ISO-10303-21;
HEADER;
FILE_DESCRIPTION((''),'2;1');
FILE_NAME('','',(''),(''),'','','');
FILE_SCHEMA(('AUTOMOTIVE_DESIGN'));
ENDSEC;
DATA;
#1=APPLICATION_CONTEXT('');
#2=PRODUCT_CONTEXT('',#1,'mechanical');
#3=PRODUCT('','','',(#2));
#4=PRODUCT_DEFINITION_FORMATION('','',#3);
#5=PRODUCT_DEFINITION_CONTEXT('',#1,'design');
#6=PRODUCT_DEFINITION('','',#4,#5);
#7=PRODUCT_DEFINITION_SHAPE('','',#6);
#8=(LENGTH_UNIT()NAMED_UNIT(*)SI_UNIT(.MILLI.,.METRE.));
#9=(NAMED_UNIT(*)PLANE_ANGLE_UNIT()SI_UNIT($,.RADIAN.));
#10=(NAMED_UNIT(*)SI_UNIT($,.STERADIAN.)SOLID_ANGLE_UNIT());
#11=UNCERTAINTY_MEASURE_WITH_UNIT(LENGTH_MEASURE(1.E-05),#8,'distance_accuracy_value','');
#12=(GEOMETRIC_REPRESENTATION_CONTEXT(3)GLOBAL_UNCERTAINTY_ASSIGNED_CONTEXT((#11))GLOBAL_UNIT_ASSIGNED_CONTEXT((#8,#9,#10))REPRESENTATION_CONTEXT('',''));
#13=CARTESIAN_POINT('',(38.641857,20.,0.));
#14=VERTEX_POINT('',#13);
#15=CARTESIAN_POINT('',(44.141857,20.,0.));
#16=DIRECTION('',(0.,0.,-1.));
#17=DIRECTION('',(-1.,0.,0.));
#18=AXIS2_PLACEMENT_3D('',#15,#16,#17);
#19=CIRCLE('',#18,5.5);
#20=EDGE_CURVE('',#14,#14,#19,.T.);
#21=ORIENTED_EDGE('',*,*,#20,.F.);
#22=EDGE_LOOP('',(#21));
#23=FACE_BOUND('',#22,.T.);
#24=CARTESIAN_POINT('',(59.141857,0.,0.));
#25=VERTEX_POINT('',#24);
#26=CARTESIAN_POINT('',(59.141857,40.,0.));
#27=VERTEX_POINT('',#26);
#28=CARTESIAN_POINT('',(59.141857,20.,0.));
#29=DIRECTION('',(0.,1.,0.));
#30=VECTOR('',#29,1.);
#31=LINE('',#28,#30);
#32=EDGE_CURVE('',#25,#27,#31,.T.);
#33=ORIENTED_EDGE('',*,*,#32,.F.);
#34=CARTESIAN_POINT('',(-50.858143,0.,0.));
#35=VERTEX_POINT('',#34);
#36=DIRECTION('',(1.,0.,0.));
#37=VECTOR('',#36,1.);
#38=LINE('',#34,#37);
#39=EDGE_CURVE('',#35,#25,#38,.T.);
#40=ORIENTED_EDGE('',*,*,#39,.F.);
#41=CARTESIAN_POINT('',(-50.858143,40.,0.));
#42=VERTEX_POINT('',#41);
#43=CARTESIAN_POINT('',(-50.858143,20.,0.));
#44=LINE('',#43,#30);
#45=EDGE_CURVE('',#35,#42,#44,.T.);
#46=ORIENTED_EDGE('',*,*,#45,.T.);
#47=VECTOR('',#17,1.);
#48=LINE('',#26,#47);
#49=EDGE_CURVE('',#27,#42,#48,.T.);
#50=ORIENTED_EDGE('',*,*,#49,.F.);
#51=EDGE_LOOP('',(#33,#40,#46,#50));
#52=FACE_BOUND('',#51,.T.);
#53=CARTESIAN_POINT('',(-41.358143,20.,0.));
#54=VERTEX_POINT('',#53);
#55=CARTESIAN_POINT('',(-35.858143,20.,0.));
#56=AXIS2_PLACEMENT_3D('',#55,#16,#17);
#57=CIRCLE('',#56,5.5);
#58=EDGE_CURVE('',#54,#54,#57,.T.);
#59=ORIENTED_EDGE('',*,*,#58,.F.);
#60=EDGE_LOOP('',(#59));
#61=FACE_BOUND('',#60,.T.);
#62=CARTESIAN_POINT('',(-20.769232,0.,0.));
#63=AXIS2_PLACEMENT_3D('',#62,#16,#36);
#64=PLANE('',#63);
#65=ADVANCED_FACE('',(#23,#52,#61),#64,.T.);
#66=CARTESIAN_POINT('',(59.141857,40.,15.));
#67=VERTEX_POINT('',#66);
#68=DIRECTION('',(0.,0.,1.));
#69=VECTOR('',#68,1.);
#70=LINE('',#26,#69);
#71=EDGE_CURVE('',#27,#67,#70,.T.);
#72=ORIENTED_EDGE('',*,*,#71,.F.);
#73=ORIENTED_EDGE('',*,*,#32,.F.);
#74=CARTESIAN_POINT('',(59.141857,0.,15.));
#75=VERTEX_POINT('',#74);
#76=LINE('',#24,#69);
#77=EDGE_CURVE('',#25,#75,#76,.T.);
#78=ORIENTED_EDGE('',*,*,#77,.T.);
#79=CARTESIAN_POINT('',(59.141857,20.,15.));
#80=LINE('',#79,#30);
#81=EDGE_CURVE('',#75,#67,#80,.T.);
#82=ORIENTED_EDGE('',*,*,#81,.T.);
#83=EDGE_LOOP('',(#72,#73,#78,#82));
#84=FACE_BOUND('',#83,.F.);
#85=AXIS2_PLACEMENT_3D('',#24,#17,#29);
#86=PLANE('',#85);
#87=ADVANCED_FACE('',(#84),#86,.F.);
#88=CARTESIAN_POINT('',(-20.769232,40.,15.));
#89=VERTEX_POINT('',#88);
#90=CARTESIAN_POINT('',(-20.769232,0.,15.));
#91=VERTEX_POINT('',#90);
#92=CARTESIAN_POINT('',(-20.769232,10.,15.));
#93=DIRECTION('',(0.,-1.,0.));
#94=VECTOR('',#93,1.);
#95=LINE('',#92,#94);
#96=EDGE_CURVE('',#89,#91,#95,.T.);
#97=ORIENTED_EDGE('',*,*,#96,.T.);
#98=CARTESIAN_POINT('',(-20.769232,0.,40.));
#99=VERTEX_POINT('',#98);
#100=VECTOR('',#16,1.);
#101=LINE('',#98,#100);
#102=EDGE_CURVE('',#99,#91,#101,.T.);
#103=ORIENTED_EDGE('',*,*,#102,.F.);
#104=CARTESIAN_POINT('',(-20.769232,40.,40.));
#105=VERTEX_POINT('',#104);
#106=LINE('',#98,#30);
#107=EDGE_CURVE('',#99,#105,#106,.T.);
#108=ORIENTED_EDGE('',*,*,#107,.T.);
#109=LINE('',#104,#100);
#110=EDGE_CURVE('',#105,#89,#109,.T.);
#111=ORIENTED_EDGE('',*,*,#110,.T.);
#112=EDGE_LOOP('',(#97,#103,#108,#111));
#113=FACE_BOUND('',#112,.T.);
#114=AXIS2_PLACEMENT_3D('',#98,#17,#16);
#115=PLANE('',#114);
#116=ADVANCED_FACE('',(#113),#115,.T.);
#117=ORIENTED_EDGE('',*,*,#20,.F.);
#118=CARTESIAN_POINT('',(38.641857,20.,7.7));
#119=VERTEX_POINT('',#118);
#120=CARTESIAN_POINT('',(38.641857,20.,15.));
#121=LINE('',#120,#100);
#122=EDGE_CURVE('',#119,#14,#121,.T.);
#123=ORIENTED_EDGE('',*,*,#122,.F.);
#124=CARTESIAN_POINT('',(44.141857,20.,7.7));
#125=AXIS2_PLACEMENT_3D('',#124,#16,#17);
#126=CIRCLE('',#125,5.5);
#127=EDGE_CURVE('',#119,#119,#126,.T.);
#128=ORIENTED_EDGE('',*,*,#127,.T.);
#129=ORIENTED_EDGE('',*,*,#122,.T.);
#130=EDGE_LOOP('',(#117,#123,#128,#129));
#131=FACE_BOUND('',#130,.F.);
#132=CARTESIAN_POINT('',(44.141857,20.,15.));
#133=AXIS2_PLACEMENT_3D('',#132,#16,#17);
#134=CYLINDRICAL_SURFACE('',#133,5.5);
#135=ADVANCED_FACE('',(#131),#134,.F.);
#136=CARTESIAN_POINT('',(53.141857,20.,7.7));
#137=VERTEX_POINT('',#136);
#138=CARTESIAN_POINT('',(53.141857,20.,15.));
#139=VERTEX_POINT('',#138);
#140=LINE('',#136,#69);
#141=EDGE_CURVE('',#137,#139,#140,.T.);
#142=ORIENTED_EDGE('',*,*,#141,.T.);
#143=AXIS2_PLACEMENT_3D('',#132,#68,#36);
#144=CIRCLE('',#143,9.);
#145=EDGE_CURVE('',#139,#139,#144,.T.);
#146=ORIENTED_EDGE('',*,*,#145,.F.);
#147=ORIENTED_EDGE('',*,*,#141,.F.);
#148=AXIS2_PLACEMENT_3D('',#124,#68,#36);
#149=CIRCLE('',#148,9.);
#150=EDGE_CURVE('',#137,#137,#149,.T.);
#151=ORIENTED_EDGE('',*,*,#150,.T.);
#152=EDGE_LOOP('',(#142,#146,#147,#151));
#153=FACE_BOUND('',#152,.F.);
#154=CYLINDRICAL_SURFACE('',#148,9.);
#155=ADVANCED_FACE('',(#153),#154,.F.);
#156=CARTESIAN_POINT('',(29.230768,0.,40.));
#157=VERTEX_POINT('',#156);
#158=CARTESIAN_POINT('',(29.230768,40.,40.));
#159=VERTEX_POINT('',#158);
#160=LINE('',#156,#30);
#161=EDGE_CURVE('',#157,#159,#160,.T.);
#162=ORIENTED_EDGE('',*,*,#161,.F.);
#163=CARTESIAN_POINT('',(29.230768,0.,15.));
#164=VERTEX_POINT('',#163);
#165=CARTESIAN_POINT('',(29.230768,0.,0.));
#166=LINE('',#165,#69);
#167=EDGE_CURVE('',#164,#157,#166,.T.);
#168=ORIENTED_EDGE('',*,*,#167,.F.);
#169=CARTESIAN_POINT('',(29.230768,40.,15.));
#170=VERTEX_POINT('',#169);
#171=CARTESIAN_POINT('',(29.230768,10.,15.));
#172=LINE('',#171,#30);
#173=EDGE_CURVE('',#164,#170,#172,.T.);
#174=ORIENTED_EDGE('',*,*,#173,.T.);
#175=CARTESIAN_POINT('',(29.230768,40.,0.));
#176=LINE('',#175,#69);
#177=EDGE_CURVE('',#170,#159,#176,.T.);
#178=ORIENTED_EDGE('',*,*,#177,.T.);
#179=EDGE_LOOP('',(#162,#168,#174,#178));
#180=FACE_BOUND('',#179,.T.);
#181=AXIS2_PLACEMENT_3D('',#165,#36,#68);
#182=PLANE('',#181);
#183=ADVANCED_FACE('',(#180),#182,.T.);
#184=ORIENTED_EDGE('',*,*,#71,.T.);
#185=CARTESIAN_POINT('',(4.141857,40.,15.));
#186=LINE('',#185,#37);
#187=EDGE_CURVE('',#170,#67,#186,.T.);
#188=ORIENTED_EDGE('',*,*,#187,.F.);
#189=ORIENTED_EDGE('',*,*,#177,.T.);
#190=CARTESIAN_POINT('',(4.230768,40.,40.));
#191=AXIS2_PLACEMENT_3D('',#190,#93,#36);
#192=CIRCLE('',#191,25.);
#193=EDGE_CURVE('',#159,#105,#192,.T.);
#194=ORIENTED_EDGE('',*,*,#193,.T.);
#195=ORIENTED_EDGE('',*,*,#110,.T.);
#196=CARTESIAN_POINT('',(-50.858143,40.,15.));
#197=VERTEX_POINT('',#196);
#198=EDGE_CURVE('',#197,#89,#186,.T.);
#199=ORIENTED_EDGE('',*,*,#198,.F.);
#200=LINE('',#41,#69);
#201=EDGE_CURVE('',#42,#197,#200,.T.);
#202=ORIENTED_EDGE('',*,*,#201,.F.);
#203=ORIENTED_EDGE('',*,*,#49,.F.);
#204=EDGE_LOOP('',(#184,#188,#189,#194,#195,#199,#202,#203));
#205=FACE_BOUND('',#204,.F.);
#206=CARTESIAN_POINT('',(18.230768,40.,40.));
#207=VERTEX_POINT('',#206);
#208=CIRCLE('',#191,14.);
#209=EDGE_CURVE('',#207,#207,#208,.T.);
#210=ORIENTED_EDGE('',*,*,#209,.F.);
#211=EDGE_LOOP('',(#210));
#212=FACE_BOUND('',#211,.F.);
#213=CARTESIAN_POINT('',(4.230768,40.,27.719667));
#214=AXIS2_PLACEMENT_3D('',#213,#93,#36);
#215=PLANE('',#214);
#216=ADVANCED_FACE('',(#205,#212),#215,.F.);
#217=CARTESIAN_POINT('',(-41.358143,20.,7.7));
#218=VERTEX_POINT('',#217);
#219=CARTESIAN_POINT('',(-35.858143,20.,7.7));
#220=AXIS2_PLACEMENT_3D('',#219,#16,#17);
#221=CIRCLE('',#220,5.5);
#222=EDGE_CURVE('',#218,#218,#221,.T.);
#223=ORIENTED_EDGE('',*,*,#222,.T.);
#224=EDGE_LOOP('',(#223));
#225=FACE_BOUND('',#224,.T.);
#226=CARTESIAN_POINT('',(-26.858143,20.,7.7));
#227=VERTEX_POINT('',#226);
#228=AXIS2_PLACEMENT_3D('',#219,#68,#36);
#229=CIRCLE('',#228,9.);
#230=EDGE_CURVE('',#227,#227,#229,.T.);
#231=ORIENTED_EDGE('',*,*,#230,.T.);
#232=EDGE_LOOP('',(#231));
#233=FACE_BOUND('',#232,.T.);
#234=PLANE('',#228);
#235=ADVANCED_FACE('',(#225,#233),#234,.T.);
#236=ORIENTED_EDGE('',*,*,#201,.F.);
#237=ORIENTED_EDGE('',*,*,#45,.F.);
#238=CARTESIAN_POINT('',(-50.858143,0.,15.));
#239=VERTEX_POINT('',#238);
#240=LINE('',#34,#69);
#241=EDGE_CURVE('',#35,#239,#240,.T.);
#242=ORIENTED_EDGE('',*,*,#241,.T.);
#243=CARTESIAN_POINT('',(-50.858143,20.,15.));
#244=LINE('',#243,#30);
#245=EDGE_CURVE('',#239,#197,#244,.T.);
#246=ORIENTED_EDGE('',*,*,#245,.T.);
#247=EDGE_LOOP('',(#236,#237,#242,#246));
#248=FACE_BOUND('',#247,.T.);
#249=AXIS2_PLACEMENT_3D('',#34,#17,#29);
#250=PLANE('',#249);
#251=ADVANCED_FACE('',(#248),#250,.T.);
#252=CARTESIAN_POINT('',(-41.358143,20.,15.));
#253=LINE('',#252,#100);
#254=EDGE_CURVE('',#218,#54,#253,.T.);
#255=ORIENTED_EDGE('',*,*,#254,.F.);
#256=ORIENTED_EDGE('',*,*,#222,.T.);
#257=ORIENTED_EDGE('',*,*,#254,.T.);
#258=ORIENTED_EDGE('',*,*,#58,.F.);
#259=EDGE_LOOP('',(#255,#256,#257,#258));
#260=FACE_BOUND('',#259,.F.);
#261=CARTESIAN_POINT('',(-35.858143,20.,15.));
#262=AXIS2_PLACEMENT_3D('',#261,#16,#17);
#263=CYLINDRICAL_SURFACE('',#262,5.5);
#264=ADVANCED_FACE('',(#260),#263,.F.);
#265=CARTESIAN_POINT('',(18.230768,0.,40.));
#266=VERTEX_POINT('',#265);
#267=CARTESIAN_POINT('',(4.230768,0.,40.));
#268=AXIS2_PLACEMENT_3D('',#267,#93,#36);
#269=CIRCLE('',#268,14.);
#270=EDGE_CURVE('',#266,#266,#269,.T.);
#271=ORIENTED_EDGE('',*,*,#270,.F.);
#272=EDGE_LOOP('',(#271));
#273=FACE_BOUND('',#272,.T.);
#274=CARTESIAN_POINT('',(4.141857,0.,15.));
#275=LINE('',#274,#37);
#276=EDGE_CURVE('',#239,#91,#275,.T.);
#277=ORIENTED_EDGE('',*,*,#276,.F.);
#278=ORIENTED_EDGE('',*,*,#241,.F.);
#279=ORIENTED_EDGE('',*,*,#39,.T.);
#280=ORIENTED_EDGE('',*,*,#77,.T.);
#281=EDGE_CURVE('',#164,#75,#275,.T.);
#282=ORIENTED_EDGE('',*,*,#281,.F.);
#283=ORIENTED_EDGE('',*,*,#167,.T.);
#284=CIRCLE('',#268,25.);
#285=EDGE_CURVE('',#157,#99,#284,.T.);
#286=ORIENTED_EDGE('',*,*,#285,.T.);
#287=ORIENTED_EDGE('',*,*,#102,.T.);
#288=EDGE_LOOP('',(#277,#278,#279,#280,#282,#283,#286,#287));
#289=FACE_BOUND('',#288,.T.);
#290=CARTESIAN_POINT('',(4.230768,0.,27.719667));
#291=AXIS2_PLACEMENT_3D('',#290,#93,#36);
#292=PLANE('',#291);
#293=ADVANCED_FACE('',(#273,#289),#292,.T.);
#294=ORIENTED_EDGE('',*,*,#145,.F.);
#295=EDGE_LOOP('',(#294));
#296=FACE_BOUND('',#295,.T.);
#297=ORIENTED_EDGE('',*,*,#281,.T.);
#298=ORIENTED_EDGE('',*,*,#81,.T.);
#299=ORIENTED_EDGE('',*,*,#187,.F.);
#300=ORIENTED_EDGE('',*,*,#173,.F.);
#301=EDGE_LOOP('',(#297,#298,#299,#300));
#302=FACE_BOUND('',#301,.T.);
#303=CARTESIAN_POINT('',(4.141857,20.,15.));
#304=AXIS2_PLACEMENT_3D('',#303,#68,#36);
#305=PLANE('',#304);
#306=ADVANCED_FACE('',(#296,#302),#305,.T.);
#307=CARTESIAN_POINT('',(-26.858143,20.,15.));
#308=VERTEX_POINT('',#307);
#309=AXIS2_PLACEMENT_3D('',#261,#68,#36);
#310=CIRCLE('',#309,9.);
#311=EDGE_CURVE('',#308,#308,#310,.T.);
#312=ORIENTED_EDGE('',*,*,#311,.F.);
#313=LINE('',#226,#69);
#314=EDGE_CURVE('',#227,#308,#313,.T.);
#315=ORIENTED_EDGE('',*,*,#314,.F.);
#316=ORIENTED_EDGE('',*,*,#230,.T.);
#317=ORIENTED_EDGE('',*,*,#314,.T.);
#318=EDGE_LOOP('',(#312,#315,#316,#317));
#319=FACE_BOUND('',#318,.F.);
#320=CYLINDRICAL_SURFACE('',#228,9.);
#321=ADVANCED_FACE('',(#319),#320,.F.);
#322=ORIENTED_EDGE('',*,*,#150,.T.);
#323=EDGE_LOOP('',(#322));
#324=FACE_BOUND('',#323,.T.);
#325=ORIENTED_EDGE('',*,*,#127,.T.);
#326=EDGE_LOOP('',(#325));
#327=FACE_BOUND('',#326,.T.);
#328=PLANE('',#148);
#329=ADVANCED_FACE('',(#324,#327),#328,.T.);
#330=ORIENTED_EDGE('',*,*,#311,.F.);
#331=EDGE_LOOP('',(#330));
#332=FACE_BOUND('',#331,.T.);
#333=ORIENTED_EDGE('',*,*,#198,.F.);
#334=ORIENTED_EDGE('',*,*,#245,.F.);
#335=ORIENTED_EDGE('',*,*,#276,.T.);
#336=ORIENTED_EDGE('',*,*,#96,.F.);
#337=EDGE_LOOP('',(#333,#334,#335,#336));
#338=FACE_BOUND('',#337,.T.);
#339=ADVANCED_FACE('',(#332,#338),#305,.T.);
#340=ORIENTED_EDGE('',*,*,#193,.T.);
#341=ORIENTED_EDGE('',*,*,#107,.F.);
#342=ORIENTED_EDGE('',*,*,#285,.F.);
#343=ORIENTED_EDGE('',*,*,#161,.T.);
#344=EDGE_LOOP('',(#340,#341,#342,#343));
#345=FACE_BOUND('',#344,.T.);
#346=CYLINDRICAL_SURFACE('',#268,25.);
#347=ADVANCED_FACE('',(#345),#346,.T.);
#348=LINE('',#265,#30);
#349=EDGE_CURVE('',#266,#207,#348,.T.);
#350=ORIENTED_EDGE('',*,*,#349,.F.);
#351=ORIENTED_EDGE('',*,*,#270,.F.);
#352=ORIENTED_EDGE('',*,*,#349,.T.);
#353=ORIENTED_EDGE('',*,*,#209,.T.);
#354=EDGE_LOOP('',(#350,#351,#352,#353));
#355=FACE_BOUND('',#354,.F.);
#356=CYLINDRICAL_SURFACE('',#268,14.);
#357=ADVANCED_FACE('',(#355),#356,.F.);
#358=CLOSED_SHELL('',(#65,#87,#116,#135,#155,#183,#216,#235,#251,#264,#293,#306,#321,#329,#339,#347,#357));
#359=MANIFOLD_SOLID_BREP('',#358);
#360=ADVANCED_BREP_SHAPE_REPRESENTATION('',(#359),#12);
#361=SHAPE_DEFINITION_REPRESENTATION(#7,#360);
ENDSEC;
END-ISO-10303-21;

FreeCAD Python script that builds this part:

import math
import FreeCAD as App
import Part
import Sketcher
from FreeCAD import Vector
Q = App.Units.Quantity


def add_polygon(sketch, points):
    """Adds a closed chain of lines whose ends are joined by coincident constraints."""
    first, n = sketch.GeometryCount, len(points)
    for a, b in zip(points, points[1:] + points[:1]):
        sketch.addGeometry(Part.LineSegment(App.Vector(*a, 0), App.Vector(*b, 0)), False)
    for i in range(n):
        sketch.addConstraint(Sketcher.Constraint("Coincident", first + i, 2, first + (i + 1) % n, 1))

doc = App.newDocument("Part")
body = doc.addObject("PartDesign::Body", "Body")

# Sketch on XY plane
sketch1 = body.newObject("Sketcher::SketchObject", "Sketch")
sketch1.AttachmentSupport = (doc.getObject("XY_Plane"), [""])
sketch1.MapMode = "FlatFace"
add_polygon(sketch1, [(-51, 40), (-51, 0), (59, 0), (59, 40)])  # lines 0-3
sketch1.addConstraint(Sketcher.Constraint("Vertical", 0))
sketch1.addConstraint(Sketcher.Constraint("Horizontal", 1))
sketch1.addConstraint(Sketcher.Constraint("Vertical", 2))
sketch1.addConstraint(Sketcher.Constraint("Horizontal", 3))
sketch1.addConstraint(Sketcher.Constraint("PointOnObject", 0, 2, -1))
sketch1.addConstraint(Sketcher.Constraint("DistanceX", 1, 1, 1, 2, Q("110 mm")))
sketch1.addConstraint(Sketcher.Constraint("DistanceY", 0, 2, 0, 1, Q("40 mm")))
sketch1.addConstraint(Sketcher.Constraint("DistanceX", 0, 2, -1, 1, Q("50.858143 mm")))
pad1 = body.newObject("PartDesign::Pad", "Pad")
pad1.Profile = sketch1
pad1.Length = 15

# Sketch on XY plane
sketch2 = body.newObject("Sketcher::SketchObject", "Sketch001")
sketch2.AttachmentSupport = (doc.getObject("XY_Plane"), [""])
sketch2.MapMode = "FlatFace"
sketch2.AttachmentOffset = App.Placement(Vector(0, 0, 15), App.Rotation())
sketch2.addGeometry(Part.Circle(Vector(-36, 20, 0), Vector(0, 0, 1), 6), False)
sketch2.addConstraint(Sketcher.Constraint("Diameter", 0, Q("11 mm")))
sketch2.addConstraint(Sketcher.Constraint("DistanceY", -1, 1, 0, 3, Q("20 mm")))
sketch2.addConstraint(Sketcher.Constraint("DistanceX", 0, 3, -1, 1, Q("35.858143 mm")))
doc.recompute()
hole = body.newObject("PartDesign::Hole", "Hole")
hole.Profile = sketch2
hole.ThreadType = "None"
hole.Diameter = 11
hole.DepthType = "ThroughAll"
hole.HoleCutType = "Counterbore"
hole.HoleCutDiameter = 18
hole.HoleCutDepth = 7.3

# Sketch on XY plane
sketch3 = body.newObject("Sketcher::SketchObject", "Sketch002")
sketch3.AttachmentSupport = (doc.getObject("XY_Plane"), [""])
sketch3.MapMode = "FlatFace"
sketch3.AttachmentOffset = App.Placement(Vector(0, 0, 15), App.Rotation())
sketch3.addGeometry(Part.Circle(Vector(44, 20, 0), Vector(0, 0, 1), 6), False)
sketch3.addConstraint(Sketcher.Constraint("Diameter", 0, Q("11 mm")))
sketch3.addConstraint(Sketcher.Constraint("DistanceY", -1, 1, 0, 3, Q("20 mm")))
sketch3.addConstraint(Sketcher.Constraint("DistanceX", -1, 1, 0, 3, Q("44.141857 mm")))
doc.recompute()
hole2 = body.newObject("PartDesign::Hole", "Hole001")
hole2.Profile = sketch3
hole2.ThreadType = "None"
hole2.Diameter = 11
hole2.DepthType = "ThroughAll"
hole2.HoleCutType = "Counterbore"
hole2.HoleCutDiameter = 18
hole2.HoleCutDepth = 7.3

# Sketch on XZ plane
sketch4 = body.newObject("Sketcher::SketchObject", "Sketch003")
sketch4.AttachmentSupport = (doc.getObject("XZ_Plane"), [""])
sketch4.MapMode = "FlatFace"
sketch4.addGeometry(Part.LineSegment(Vector(-21, 40, 0), Vector(-21, 0, 0)), False)
sketch4.addGeometry(Part.LineSegment(Vector(-21, 0, 0), Vector(29, 0, 0)), False)
sketch4.addGeometry(Part.LineSegment(Vector(29, 0, 0), Vector(29, 40, 0)), False)
sketch4.addGeometry(Part.ArcOfCircle(Part.Circle(Vector(4, 40, 0), Vector(0, 0, 1), 25), math.radians(0), math.radians(180)), False)
sketch4.addGeometry(Part.Circle(Vector(4, 40, 0), Vector(0, 0, 1), 14), False)
sketch4.addConstraint(Sketcher.Constraint("Coincident", 0, 2, 1, 1))
sketch4.addConstraint(Sketcher.Constraint("Coincident", 1, 2, 2, 1))
sketch4.addConstraint(Sketcher.Constraint("Tangent", 2, 2, 3, 1))
sketch4.addConstraint(Sketcher.Constraint("Tangent", 3, 2, 0, 1))
sketch4.addConstraint(Sketcher.Constraint("Vertical", 0))
sketch4.addConstraint(Sketcher.Constraint("Horizontal", 1))
sketch4.addConstraint(Sketcher.Constraint("Vertical", 2))
sketch4.addConstraint(Sketcher.Constraint("Coincident", 4, 3, 3, 3))
sketch4.addConstraint(Sketcher.Constraint("PointOnObject", 0, 2, -1))
sketch4.addConstraint(Sketcher.Constraint("Diameter", 4, Q("28 mm")))
sketch4.addConstraint(Sketcher.Constraint("Radius", 3, Q("25 mm")))
sketch4.addConstraint(Sketcher.Constraint("DistanceY", 0, 2, 0, 1, Q("40 mm")))
sketch4.addConstraint(Sketcher.Constraint("DistanceX", -1, 1, 3, 3, Q("4.230768 mm")))
pad2 = body.newObject("PartDesign::Pad", "Pad001")
pad2.Profile = sketch4
pad2.Length = 40
pad2.Reversed = True

doc.recompute()
